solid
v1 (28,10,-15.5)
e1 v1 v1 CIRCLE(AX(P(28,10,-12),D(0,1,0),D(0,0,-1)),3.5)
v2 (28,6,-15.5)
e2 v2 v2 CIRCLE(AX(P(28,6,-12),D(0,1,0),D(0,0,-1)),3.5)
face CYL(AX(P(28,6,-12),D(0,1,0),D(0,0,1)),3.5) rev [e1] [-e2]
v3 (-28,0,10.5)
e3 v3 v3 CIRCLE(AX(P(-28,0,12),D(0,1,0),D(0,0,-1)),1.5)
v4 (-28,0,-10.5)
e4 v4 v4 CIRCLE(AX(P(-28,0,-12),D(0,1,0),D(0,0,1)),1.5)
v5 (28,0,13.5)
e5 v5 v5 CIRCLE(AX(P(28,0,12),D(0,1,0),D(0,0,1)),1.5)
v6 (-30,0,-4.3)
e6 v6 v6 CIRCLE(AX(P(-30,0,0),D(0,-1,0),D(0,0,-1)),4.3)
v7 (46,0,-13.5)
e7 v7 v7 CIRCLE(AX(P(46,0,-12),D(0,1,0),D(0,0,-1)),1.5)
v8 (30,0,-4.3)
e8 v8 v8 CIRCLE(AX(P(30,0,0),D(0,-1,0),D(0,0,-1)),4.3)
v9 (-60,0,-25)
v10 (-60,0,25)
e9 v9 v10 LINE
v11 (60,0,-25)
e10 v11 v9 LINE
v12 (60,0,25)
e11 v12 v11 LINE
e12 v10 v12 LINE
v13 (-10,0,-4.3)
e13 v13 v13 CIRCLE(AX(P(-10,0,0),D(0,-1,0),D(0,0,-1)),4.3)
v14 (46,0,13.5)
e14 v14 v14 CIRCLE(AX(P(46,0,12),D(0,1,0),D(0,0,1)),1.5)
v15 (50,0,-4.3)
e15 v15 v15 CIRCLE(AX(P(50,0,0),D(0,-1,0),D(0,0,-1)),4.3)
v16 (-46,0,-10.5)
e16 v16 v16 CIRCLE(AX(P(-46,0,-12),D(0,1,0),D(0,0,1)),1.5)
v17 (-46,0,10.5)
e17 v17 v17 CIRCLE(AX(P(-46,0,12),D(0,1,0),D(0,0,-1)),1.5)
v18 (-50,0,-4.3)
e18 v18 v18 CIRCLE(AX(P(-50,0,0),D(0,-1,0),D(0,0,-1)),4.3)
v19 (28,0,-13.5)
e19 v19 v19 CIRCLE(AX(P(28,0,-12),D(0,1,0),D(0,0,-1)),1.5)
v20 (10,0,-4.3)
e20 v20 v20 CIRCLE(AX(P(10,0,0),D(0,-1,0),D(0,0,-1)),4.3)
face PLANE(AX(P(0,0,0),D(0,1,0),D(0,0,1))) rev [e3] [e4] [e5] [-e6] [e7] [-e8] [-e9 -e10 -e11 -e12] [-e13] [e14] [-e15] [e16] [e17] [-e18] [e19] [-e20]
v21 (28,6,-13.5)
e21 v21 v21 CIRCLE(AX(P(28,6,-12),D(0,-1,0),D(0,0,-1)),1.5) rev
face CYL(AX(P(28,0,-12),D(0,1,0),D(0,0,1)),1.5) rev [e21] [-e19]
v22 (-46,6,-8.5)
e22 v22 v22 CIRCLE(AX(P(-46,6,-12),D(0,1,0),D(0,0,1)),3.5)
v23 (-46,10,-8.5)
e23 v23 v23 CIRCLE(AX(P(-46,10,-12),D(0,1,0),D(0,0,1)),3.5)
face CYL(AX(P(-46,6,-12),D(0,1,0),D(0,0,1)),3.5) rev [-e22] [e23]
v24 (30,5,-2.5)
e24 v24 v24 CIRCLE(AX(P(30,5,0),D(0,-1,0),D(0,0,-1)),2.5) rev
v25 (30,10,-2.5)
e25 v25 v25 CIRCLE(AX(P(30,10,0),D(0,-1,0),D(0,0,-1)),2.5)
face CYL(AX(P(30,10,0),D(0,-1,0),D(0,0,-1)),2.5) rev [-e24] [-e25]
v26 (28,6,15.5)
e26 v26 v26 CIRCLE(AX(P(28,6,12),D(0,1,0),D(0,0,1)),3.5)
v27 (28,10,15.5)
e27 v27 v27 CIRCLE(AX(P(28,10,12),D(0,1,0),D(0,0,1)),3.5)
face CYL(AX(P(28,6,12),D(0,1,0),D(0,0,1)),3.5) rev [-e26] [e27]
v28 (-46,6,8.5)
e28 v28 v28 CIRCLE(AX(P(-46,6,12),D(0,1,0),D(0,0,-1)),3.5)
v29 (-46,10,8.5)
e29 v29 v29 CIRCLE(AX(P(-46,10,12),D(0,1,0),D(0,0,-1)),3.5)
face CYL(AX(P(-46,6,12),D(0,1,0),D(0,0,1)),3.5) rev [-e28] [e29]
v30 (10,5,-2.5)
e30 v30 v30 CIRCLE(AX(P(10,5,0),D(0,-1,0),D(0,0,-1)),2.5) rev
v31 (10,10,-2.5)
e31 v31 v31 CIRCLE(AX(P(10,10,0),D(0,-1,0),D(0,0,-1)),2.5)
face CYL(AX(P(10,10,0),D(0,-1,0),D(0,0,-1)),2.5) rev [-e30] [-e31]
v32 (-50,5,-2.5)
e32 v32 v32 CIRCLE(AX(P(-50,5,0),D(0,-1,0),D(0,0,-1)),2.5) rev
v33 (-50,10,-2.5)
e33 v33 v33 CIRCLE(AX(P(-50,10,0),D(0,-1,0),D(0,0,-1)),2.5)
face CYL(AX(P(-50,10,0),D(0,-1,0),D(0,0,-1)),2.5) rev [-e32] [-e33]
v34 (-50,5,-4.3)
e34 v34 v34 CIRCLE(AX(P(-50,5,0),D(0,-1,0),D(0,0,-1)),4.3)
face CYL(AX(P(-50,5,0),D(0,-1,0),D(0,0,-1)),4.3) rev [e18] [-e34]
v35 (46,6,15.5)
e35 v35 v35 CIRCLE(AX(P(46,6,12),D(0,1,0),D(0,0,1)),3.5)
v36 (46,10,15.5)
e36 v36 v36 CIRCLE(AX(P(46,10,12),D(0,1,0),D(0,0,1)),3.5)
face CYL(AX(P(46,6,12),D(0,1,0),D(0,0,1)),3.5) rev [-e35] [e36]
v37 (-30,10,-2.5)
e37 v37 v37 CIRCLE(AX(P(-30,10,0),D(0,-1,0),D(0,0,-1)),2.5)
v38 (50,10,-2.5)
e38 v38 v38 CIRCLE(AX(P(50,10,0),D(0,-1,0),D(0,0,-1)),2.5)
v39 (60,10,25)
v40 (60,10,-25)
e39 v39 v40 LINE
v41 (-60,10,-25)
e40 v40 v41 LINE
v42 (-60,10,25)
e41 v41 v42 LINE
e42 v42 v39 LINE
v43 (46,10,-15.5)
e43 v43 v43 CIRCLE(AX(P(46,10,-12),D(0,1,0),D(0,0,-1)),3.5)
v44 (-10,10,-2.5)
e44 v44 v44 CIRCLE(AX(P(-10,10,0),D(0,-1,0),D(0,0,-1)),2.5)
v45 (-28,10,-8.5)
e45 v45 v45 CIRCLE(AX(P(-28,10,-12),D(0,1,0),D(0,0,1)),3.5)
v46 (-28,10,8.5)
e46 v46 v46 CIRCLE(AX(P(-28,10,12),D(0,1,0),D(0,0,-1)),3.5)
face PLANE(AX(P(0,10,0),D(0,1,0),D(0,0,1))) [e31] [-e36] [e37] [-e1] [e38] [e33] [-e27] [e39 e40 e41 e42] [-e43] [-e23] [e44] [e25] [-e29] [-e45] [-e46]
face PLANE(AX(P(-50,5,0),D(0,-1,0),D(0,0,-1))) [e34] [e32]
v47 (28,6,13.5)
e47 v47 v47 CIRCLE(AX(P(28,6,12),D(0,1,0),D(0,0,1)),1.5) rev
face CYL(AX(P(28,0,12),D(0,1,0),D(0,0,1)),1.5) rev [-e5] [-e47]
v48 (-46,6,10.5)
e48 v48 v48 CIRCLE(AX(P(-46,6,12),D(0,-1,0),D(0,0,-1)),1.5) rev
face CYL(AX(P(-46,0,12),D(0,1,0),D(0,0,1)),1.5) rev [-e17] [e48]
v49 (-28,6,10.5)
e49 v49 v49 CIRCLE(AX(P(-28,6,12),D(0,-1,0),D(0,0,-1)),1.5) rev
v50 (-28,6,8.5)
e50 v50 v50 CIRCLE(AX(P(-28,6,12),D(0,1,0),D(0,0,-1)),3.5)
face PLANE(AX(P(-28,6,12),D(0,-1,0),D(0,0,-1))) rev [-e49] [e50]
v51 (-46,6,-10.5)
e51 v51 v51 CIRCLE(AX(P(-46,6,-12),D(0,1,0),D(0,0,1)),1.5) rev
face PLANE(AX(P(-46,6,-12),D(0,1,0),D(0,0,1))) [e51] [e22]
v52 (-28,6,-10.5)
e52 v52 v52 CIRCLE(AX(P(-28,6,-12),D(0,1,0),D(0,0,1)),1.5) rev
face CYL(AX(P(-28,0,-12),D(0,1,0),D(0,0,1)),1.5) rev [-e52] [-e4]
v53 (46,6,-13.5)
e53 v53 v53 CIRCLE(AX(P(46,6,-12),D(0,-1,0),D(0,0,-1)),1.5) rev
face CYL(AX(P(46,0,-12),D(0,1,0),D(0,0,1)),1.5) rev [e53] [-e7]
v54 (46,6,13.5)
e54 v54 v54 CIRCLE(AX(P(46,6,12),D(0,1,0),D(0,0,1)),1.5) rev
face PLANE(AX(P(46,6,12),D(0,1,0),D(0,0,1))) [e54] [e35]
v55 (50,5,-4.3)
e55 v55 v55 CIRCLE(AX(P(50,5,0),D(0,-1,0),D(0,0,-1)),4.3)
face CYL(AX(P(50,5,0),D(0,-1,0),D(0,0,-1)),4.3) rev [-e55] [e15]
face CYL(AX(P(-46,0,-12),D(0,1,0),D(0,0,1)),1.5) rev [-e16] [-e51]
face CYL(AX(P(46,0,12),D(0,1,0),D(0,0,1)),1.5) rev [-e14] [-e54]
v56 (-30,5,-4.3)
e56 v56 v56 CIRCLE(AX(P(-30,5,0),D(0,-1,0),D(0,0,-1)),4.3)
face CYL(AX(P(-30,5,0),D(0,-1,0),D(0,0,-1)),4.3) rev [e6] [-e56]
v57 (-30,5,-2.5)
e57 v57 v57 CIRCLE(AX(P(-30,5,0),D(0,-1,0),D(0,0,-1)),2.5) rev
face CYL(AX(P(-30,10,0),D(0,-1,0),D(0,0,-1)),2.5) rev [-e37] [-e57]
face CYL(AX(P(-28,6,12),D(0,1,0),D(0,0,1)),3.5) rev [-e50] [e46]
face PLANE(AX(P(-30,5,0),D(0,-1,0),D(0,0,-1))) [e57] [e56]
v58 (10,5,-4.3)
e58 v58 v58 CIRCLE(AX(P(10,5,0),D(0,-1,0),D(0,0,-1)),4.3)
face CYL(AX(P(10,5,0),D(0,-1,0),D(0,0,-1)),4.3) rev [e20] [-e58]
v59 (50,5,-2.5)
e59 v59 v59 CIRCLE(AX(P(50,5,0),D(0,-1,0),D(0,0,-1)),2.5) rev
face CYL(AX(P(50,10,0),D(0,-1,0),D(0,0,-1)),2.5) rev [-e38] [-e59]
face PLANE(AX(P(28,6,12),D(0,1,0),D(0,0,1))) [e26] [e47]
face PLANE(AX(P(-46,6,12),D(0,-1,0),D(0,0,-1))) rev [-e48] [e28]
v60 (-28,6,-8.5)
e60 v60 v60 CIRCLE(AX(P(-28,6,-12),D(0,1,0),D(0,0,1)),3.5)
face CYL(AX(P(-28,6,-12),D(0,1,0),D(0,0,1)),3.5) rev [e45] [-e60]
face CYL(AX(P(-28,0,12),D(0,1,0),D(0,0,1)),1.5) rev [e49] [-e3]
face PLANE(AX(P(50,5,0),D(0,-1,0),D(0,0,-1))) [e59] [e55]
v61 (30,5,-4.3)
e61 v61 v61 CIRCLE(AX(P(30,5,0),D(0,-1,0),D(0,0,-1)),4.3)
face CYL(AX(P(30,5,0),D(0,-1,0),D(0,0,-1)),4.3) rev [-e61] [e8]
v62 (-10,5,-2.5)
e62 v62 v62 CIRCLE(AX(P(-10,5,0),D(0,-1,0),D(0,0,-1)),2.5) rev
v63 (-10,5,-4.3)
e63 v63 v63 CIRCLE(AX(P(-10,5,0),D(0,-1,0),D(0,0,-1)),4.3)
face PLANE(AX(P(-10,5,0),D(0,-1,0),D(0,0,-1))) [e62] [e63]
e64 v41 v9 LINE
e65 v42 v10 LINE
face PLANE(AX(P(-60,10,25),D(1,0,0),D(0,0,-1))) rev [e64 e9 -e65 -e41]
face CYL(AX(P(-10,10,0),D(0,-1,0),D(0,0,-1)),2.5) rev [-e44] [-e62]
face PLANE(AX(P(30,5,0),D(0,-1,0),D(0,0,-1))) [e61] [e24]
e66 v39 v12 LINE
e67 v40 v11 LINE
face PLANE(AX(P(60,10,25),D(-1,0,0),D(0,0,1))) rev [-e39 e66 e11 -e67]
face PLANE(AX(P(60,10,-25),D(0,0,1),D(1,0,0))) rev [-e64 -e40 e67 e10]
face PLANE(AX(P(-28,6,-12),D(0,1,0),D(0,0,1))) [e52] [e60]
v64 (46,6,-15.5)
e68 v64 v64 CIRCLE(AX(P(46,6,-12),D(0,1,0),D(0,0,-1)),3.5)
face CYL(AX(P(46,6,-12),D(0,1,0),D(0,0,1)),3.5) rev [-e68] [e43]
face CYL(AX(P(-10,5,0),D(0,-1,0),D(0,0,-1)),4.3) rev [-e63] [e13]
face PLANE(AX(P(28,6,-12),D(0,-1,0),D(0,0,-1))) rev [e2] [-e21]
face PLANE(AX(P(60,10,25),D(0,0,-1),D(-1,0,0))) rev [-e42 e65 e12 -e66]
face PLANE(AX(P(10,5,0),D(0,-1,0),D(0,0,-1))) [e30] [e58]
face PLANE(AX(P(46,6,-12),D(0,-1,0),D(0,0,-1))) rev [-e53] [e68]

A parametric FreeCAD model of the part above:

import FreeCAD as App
import Part
import Sketcher
from FreeCAD import Vector


def add_polygon(sketch, points):
    """Adds a closed chain of lines whose ends are joined by coincident constraints."""
    first, n = sketch.GeometryCount, len(points)
    for a, b in zip(points, points[1:] + points[:1]):
        sketch.addGeometry(Part.LineSegment(App.Vector(*a, 0), App.Vector(*b, 0)), False)
    for i in range(n):
        sketch.addConstraint(Sketcher.Constraint("Coincident", first + i, 2, first + (i + 1) % n, 1))

doc = App.newDocument("Part")
body = doc.addObject("PartDesign::Body", "Body")

# Sketch on XZ plane
sketch1 = body.newObject("Sketcher::SketchObject", "Sketch")
sketch1.AttachmentSupport = (doc.getObject("XZ_Plane"), [""])
sketch1.MapMode = "FlatFace"
add_polygon(sketch1, [(-60, -25), (-60, 25), (60, 25), (60, -25)])  # lines 0-3
sketch1.addConstraint([
    Sketcher.Constraint("Vertical", 0),
    Sketcher.Constraint("Horizontal", 1),
    Sketcher.Constraint("Vertical", 2),
    Sketcher.Constraint("Horizontal", 3),
    Sketcher.Constraint("Symmetric", 0, 2, 2, 2, -1, 1),
    Sketcher.Constraint("DistanceX", 1, 1, 1, 2, 120.0),
    Sketcher.Constraint("DistanceY", 0, 1, 0, 2, 50.0),
])
pad1 = body.newObject("PartDesign::Pad", "Pad")
pad1.Profile = sketch1
pad1.Length = 10
pad1.Reversed = True

# Sketch on XZ plane
sketch2 = body.newObject("Sketcher::SketchObject", "Sketch001")
sketch2.AttachmentSupport = (doc.getObject("XZ_Plane"), [""])
sketch2.MapMode = "FlatFace"
sketch2.AttachmentOffset = App.Placement(Vector(0, 0, -10), App.Rotation())
sketch2.addGeometry([
    Part.Circle(Vector(-28, 12, 0), Vector(0, 0, 1), 1.5),  # 0
    Part.Circle(Vector(-46, 12, 0), Vector(0, 0, 1), 1.5),  # 1
    Part.Circle(Vector(28, 12, 0), Vector(0, 0, 1), 1.5),  # 2
    Part.Circle(Vector(46, 12, 0), Vector(0, 0, 1), 1.5),  # 3
    Part.Circle(Vector(46, -12, 0), Vector(0, 0, 1), 1.5),  # 4
    Part.Circle(Vector(28, -12, 0), Vector(0, 0, 1), 1.5),  # 5
    Part.Circle(Vector(-46, -12, 0), Vector(0, 0, 1), 1.5),  # 6
    Part.Circle(Vector(-28, -12, 0), Vector(0, 0, 1), 1.5),  # 7
], False)
sketch2.addConstraint([
    Sketcher.Constraint("Equal", 0, 1),
    Sketcher.Constraint("Equal", 1, 2),
    Sketcher.Constraint("Equal", 2, 3),
    Sketcher.Constraint("Equal", 3, 4),
    Sketcher.Constraint("Equal", 4, 5),
    Sketcher.Constraint("Equal", 5, 6),
    Sketcher.Constraint("Equal", 6, 7),
    Sketcher.Constraint("Symmetric", 1, 3, 4, 3, -1, 1),
    Sketcher.Constraint("Symmetric", 0, 3, 5, 3, -1, 1),
    Sketcher.Constraint("Symmetric", 3, 3, 6, 3, -1, 1),
    Sketcher.Constraint("Symmetric", 2, 3, 7, 3, -1, 1),
    Sketcher.Constraint("Symmetric", 0, 3, 2, 3, -2),
    Sketcher.Constraint("Symmetric", 1, 3, 3, 3, -2),
    Sketcher.Constraint("Horizontal", 0, 3, 1, 3),
    Sketcher.Constraint("Diameter", 0, 3.0),
    Sketcher.Constraint("DistanceX", 0, 3, -1, 1, 28.0),
    Sketcher.Constraint("DistanceY", -1, 1, 0, 3, 12.0),
    Sketcher.Constraint("DistanceX", 1, 3, -1, 1, 46.0),
])
pocket1 = body.newObject("PartDesign::Pocket", "Pocket")
pocket1.Profile = sketch2
pocket1.Type = "ThroughAll"
pocket1.Reversed = True

# Sketch on XZ plane
sketch3 = body.newObject("Sketcher::SketchObject", "Sketch002")
sketch3.AttachmentSupport = (doc.getObject("XZ_Plane"), [""])
sketch3.MapMode = "FlatFace"
sketch3.AttachmentOffset = App.Placement(Vector(0, 0, -10), App.Rotation())
sketch3.addGeometry([
    Part.Circle(Vector(-46, -12, 0), Vector(0, 0, 1), 3.5),  # 0
    Part.Circle(Vector(-28, -12, 0), Vector(0, 0, 1), 3.5),  # 1
    Part.Circle(Vector(-28, 12, 0), Vector(0, 0, 1), 3.5),  # 2
    Part.Circle(Vector(-46, 12, 0), Vector(0, 0, 1), 3.5),  # 3
    Part.Circle(Vector(46, 12, 0), Vector(0, 0, 1), 3.5),  # 4
    Part.Circle(Vector(28, 12, 0), Vector(0, 0, 1), 3.5),  # 5
    Part.Circle(Vector(28, -12, 0), Vector(0, 0, 1), 3.5),  # 6
    Part.Circle(Vector(46, -12, 0), Vector(0, 0, 1), 3.5),  # 7
], False)
sketch3.addConstraint([
    Sketcher.Constraint("Equal", 0, 1),
    Sketcher.Constraint("Equal", 1, 2),
    Sketcher.Constraint("Equal", 2, 3),
    Sketcher.Constraint("Equal", 3, 4),
    Sketcher.Constraint("Equal", 4, 5),
    Sketcher.Constraint("Equal", 5, 6),
    Sketcher.Constraint("Equal", 6, 7),
    Sketcher.Constraint("Symmetric", 0, 3, 4, 3, -1, 1),
    Sketcher.Constraint("Symmetric", 1, 3, 5, 3, -1, 1),
    Sketcher.Constraint("Symmetric", 2, 3, 6, 3, -1, 1),
    Sketcher.Constraint("Symmetric", 3, 3, 7, 3, -1, 1),
    Sketcher.Constraint("Symmetric", 3, 3, 4, 3, -2),
    Sketcher.Constraint("Symmetric", 2, 3, 5, 3, -2),
    Sketcher.Constraint("Horizontal", 0, 3, 1, 3),
    Sketcher.Constraint("Diameter", 0, 7.0),
    Sketcher.Constraint("DistanceX", 0, 3, -1, 1, 46.0),
    Sketcher.Constraint("DistanceY", 0, 3, -1, 1, 12.0),
    Sketcher.Constraint("DistanceX", 1, 3, -1, 1, 28.0),
])
pocket2 = body.newObject("PartDesign::Pocket", "Pocket001")
pocket2.Profile = sketch3
pocket2.Length = 4
pocket2.Reversed = True

# Sketch on XZ plane
sketch4 = body.newObject("Sketcher::SketchObject", "Sketch003")
sketch4.AttachmentSupport = (doc.getObject("XZ_Plane"), [""])
sketch4.MapMode = "FlatFace"
sketch4.addGeometry([
    Part.Circle(Vector(-50, 0, 0), Vector(0, 0, 1), 2.5),  # 0
    Part.Circle(Vector(-30, 0, 0), Vector(0, 0, 1), 2.5),  # 1
    Part.Circle(Vector(-10, 0, 0), Vector(0, 0, 1), 2.5),  # 2
    Part.Circle(Vector(10, 0, 0), Vector(0, 0, 1), 2.5),  # 3
    Part.Circle(Vector(30, 0, 0), Vector(0, 0, 1), 2.5),  # 4
    Part.Circle(Vector(50, 0, 0), Vector(0, 0, 1), 2.5),  # 5
], False)
sketch4.addConstraint([
    Sketcher.Constraint("Equal", 0, 1),
    Sketcher.Constraint("Equal", 1, 2),
    Sketcher.Constraint("Equal", 2, 3),
    Sketcher.Constraint("Equal", 3, 4),
    Sketcher.Constraint("Equal", 4, 5),
    Sketcher.Constraint("Symmetric", 2, 3, 3, 3, -1, 1),
    Sketcher.Constraint("Symmetric", 1, 3, 4, 3, -1, 1),
    Sketcher.Constraint("Symmetric", 0, 3, 5, 3, -1, 1),
    Sketcher.Constraint("PointOnObject", 0, 3, -1),
    Sketcher.Constraint("PointOnObject", 1, 3, -1),
    Sketcher.Constraint("PointOnObject", 2, 3, -1),
    Sketcher.Constraint("Diameter", 0, 5.0),
    Sketcher.Constraint("DistanceX", 0, 3, -1, 1, 50.0),
    Sketcher.Constraint("DistanceX", 1, 3, -1, 1, 30.0),
    Sketcher.Constraint("DistanceX", 2, 3, -1, 1, 10.0),
])
pocket3 = body.newObject("PartDesign::Pocket", "Pocket002")
pocket3.Profile = sketch4
pocket3.Type = "ThroughAll"

# Sketch on XZ plane
sketch5 = body.newObject("Sketcher::SketchObject", "Sketch004")
sketch5.AttachmentSupport = (doc.getObject("XZ_Plane"), [""])
sketch5.MapMode = "FlatFace"
sketch5.addGeometry([
    Part.Circle(Vector(-50, 0, 0), Vector(0, 0, 1), 4.3),  # 0
    Part.Circle(Vector(-30, 0, 0), Vector(0, 0, 1), 4.3),  # 1
    Part.Circle(Vector(-10, 0, 0), Vector(0, 0, 1), 4.3),  # 2
    Part.Circle(Vector(10, 0, 0), Vector(0, 0, 1), 4.3),  # 3
    Part.Circle(Vector(30, 0, 0), Vector(0, 0, 1), 4.3),  # 4
    Part.Circle(Vector(50, 0, 0), Vector(0, 0, 1), 4.3),  # 5
], False)
sketch5.addConstraint([
    Sketcher.Constraint("Equal", 0, 1),
    Sketcher.Constraint("Equal", 1, 2),
    Sketcher.Constraint("Equal", 2, 3),
    Sketcher.Constraint("Equal", 3, 4),
    Sketcher.Constraint("Equal", 4, 5),
    Sketcher.Constraint("Symmetric", 2, 3, 3, 3, -1, 1),
    Sketcher.Constraint("Symmetric", 1, 3, 4, 3, -1, 1),
    Sketcher.Constraint("Symmetric", 0, 3, 5, 3, -1, 1),
    Sketcher.Constraint("PointOnObject", 0, 3, -1),
    Sketcher.Constraint("PointOnObject", 1, 3, -1),
    Sketcher.Constraint("PointOnObject", 2, 3, -1),
    Sketcher.Constraint("Diameter", 0, 8.6),
    Sketcher.Constraint("DistanceX", 0, 3, -1, 1, 50.0),
    Sketcher.Constraint("DistanceX", 1, 3, -1, 1, 30.0),
    Sketcher.Constraint("DistanceX", 2, 3, -1, 1, 10.0),
])
pocket4 = body.newObject("PartDesign::Pocket", "Pocket003")
pocket4.Profile = sketch5
pocket4.Length = 5

doc.recompute()
